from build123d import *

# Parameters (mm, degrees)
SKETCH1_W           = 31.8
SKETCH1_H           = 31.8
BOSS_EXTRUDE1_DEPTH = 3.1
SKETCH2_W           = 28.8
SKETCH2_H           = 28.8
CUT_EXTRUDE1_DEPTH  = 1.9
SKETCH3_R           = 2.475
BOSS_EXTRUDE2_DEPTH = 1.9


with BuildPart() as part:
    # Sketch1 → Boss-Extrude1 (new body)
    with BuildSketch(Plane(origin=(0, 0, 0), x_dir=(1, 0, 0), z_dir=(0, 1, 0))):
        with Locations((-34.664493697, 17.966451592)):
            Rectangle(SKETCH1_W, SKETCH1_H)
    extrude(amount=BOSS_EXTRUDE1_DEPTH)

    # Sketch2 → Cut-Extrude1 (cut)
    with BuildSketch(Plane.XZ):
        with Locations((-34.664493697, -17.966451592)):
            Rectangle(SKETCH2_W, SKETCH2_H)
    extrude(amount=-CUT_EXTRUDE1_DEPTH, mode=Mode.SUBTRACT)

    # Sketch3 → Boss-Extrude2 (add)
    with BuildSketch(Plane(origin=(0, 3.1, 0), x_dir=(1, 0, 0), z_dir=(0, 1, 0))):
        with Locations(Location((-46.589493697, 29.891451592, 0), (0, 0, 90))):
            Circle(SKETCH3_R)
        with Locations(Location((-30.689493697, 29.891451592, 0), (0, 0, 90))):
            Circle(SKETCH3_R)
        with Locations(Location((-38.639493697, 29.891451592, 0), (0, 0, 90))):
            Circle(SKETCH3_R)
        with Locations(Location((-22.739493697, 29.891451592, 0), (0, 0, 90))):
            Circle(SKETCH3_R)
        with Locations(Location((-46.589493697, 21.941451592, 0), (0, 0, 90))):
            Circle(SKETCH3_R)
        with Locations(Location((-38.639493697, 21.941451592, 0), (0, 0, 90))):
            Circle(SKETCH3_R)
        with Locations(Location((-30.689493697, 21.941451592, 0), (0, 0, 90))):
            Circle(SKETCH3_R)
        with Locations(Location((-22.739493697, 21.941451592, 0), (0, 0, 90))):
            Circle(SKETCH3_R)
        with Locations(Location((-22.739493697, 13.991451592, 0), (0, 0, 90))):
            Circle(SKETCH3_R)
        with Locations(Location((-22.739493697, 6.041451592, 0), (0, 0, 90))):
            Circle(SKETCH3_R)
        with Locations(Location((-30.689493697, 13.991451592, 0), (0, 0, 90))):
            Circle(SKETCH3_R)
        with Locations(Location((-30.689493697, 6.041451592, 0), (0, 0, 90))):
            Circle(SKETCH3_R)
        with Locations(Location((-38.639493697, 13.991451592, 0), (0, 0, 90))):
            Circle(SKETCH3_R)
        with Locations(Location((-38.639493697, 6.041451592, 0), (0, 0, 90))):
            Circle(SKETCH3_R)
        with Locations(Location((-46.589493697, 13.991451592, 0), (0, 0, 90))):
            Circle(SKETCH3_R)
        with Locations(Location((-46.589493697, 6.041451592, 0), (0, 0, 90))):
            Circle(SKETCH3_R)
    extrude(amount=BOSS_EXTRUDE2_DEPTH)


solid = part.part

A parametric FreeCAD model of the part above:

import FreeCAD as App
import Part
import Sketcher
from FreeCAD import Vector

doc = App.newDocument("Part")
body = doc.addObject("PartDesign::Body", "Body")

sketch1 = body.newObject("Sketcher::SketchObject", "Sketch")
sketch1.AttachmentSupport = (doc.getObject("XZ_Plane"), [""])
sketch1.MapMode = "FlatFace"
sketch1.addGeometry(Part.LineSegment(Vector(-51, -34, 0), Vector(-51, -2, 0)), False)
sketch1.addGeometry(Part.LineSegment(Vector(-51, -2, 0), Vector(-19, -2, 0)), False)
sketch1.addGeometry(Part.LineSegment(Vector(-19, -2, 0), Vector(-19, -34, 0)), False)
sketch1.addGeometry(Part.LineSegment(Vector(-19, -34, 0), Vector(-51, -34, 0)), False)
sketch1.addConstraint(Sketcher.Constraint("Coincident", 0, 2, 1, 1))
sketch1.addConstraint(Sketcher.Constraint("Coincident", 1, 2, 2, 1))
sketch1.addConstraint(Sketcher.Constraint("Coincident", 2, 2, 3, 1))
sketch1.addConstraint(Sketcher.Constraint("Coincident", 3, 2, 0, 1))
sketch1.addConstraint(Sketcher.Constraint("Vertical", 0))
sketch1.addConstraint(Sketcher.Constraint("Horizontal", 1))
sketch1.addConstraint(Sketcher.Constraint("Vertical", 2))
sketch1.addConstraint(Sketcher.Constraint("Horizontal", 3))
sketch1.addConstraint(Sketcher.Constraint("Equal", 3, 0))
sketch1.addConstraint(Sketcher.Constraint("DistanceX", 1, 1, 1, 2, 31.8))
sketch1.addConstraint(Sketcher.Constraint("DistanceY", 0, 2, -1, 1, 2.066452))
sketch1.addConstraint(Sketcher.Constraint("DistanceX", 0, 2, -1, 1, 50.564494))
pad1 = body.newObject("PartDesign::Pad", "Pad")
pad1.Profile = sketch1
pad1.Length = 3.1
pad1.Reversed = True

sketch2 = body.newObject("Sketcher::SketchObject", "Sketch001")
sketch2.AttachmentSupport = (doc.getObject("XZ_Plane"), [""])
sketch2.MapMode = "FlatFace"
sketch2.addGeometry(Part.LineSegment(Vector(-49, -4, 0), Vector(-49, -32, 0)), False)
sketch2.addGeometry(Part.LineSegment(Vector(-49, -32, 0), Vector(-20, -32, 0)), False)
sketch2.addGeometry(Part.LineSegment(Vector(-20, -32, 0), Vector(-20, -4, 0)), False)
sketch2.addGeometry(Part.LineSegment(Vector(-20, -4, 0), Vector(-49, -4, 0)), False)
sketch2.addConstraint(Sketcher.Constraint("Coincident", 0, 2, 1, 1))
sketch2.addConstraint(Sketcher.Constraint("Coincident", 1, 2, 2, 1))
sketch2.addConstraint(Sketcher.Constraint("Coincident", 2, 2, 3, 1))
sketch2.addConstraint(Sketcher.Constraint("Coincident", 3, 2, 0, 1))
sketch2.addConstraint(Sketcher.Constraint("Vertical", 0))
sketch2.addConstraint(Sketcher.Constraint("Horizontal", 1))
sketch2.addConstraint(Sketcher.Constraint("Vertical", 2))
sketch2.addConstraint(Sketcher.Constraint("Horizontal", 3))
sketch2.addConstraint(Sketcher.Constraint("Equal", 3, 0))
sketch2.addConstraint(Sketcher.Constraint("DistanceX", 1, 1, 1, 2, 28.8))
sketch2.addConstraint(Sketcher.Constraint("DistanceY", 0, 2, -1, 1, 32.366452))
sketch2.addConstraint(Sketcher.Constraint("DistanceX", 0, 2, -1, 1, 49.064494))
pocket1 = body.newObject("PartDesign::Pocket", "Pocket")
pocket1.Profile = sketch2
pocket1.Length = 1.9

sketch3 = body.newObject("Sketcher::SketchObject", "Sketch002")
sketch3.AttachmentSupport = (doc.getObject("XZ_Plane"), [""])
sketch3.MapMode = "FlatFace"
sketch3.AttachmentOffset = App.Placement(Vector(0, 0, -3.1), App.Rotation())
sketch3.addGeometry(Part.Circle(Vector(-46.6, -29.9, 0), Vector(0, 0, 1), 2.5), False)
sketch3.addGeometry(Part.Circle(Vector(-30.7, -29.9, 0), Vector(0, 0, 1), 2.5), False)
sketch3.addGeometry(Part.Circle(Vector(-38.6, -29.9, 0), Vector(0, 0, 1), 2.5), False)
sketch3.addGeometry(Part.Circle(Vector(-22.7, -29.9, 0), Vector(0, 0, 1), 2.5), False)
sketch3.addGeometry(Part.Circle(Vector(-46.6, -21.9, 0), Vector(0, 0, 1), 2.5), False)
sketch3.addGeometry(Part.Circle(Vector(-38.6, -21.9, 0), Vector(0, 0, 1), 2.5), False)
sketch3.addGeometry(Part.Circle(Vector(-30.7, -21.9, 0), Vector(0, 0, 1), 2.5), False)
sketch3.addGeometry(Part.Circle(Vector(-22.7, -21.9, 0), Vector(0, 0, 1), 2.5), False)
sketch3.addGeometry(Part.Circle(Vector(-22.7, -14, 0), Vector(0, 0, 1), 2.5), False)
sketch3.addGeometry(Part.Circle(Vector(-22.7, -6, 0), Vector(0, 0, 1), 2.5), False)
sketch3.addGeometry(Part.Circle(Vector(-30.7, -14, 0), Vector(0, 0, 1), 2.5), False)
sketch3.addGeometry(Part.Circle(Vector(-30.7, -6, 0), Vector(0, 0, 1), 2.5), False)
sketch3.addGeometry(Part.Circle(Vector(-38.6, -14, 0), Vector(0, 0, 1), 2.5), False)
sketch3.addGeometry(Part.Circle(Vector(-38.6, -6, 0), Vector(0, 0, 1), 2.5), False)
sketch3.addGeometry(Part.Circle(Vector(-46.6, -14, 0), Vector(0, 0, 1), 2.5), False)
sketch3.addGeometry(Part.Circle(Vector(-46.6, -6, 0), Vector(0, 0, 1), 2.5), False)
sketch3.addConstraint(Sketcher.Constraint("Equal", 0, 1))
sketch3.addConstraint(Sketcher.Constraint("Equal", 1, 2))
sketch3.addConstraint(Sketcher.Constraint("Equal", 2, 3))
sketch3.addConstraint(Sketcher.Constraint("Equal", 3, 4))
sketch3.addConstraint(Sketcher.Constraint("Equal", 4, 5))
sketch3.addConstraint(Sketcher.Constraint("Equal", 5, 6))
sketch3.addConstraint(Sketcher.Constraint("Equal", 6, 7))
sketch3.addConstraint(Sketcher.Constraint("Equal", 7, 8))
sketch3.addConstraint(Sketcher.Constraint("Equal", 8, 9))
sketch3.addConstraint(Sketcher.Constraint("Equal", 9, 10))
sketch3.addConstraint(Sketcher.Constraint("Equal", 10, 11))
sketch3.addConstraint(Sketcher.Constraint("Equal", 11, 12))
sketch3.addConstraint(Sketcher.Constraint("Equal", 12, 13))
sketch3.addConstraint(Sketcher.Constraint("Equal", 13, 14))
sketch3.addConstraint(Sketcher.Constraint("Equal", 14, 15))
sketch3.addConstraint(Sketcher.Constraint("Horizontal", 0, 3, 1, 3))
sketch3.addConstraint(Sketcher.Constraint("Horizontal", 1, 3, 2, 3))
sketch3.addConstraint(Sketcher.Constraint("Horizontal", 2, 3, 3, 3))
sketch3.addConstraint(Sketcher.Constraint("Horizontal", 4, 3, 5, 3))
sketch3.addConstraint(Sketcher.Constraint("Horizontal", 5, 3, 6, 3))
sketch3.addConstraint(Sketcher.Constraint("Horizontal", 6, 3, 7, 3))
sketch3.addConstraint(Sketcher.Constraint("Horizontal", 8, 3, 10, 3))
sketch3.addConstraint(Sketcher.Constraint("Horizontal", 9, 3, 11, 3))
sketch3.addConstraint(Sketcher.Constraint("Horizontal", 10, 3, 12, 3))
sketch3.addConstraint(Sketcher.Constraint("Horizontal", 11, 3, 13, 3))
sketch3.addConstraint(Sketcher.Constraint("Horizontal", 12, 3, 14, 3))
sketch3.addConstraint(Sketcher.Constraint("Horizontal", 13, 3, 15, 3))
sketch3.addConstraint(Sketcher.Constraint("Vertical", 0, 3, 4, 3))
sketch3.addConstraint(Sketcher.Constraint("Vertical", 2, 3, 5, 3))
sketch3.addConstraint(Sketcher.Constraint("Vertical", 1, 3, 6, 3))
sketch3.addConstraint(Sketcher.Constraint("Vertical", 3, 3, 7, 3))
sketch3.addConstraint(Sketcher.Constraint("Vertical", 7, 3, 8, 3))
sketch3.addConstraint(Sketcher.Constraint("Vertical", 8, 3, 9, 3))
sketch3.addConstraint(Sketcher.Constraint("Vertical", 6, 3, 10, 3))
sketch3.addConstraint(Sketcher.Constraint("Vertical", 10, 3, 11, 3))
sketch3.addConstraint(Sketcher.Constraint("Vertical", 5, 3, 12, 3))
sketch3.addConstraint(Sketcher.Constraint("Vertical", 12, 3, 13, 3))
sketch3.addConstraint(Sketcher.Constraint("Vertical", 4, 3, 14, 3))
sketch3.addConstraint(Sketcher.Constraint("Vertical", 14, 3, 15, 3))
sketch3.addConstraint(Sketcher.Constraint("Diameter", 0, 4.95))
sketch3.addConstraint(Sketcher.Constraint("DistanceX", 0, 3, 1, 3, 15.9))
sketch3.addConstraint(Sketcher.Constraint("DistanceX", 2, 3, 3, 3, 15.9))
sketch3.addConstraint(Sketcher.Constraint("DistanceY", 3, 3, 8, 3, 15.9))
sketch3.addConstraint(Sketcher.Constraint("DistanceY", 7, 3, 9, 3, 15.9))
sketch3.addConstraint(Sketcher.Constraint("DistanceX", 2, 3, 1, 3, 7.95))
sketch3.addConstraint(Sketcher.Constraint("DistanceY", 0, 3, 4, 3, 7.95))
sketch3.addConstraint(Sketcher.Constraint("DistanceY", 0, 3, -1, 1, 29.891452))
sketch3.addConstraint(Sketcher.Constraint("DistanceX", 0, 3, -1, 1, 46.589494))
pad2 = body.newObject("PartDesign::Pad", "Pad001")
pad2.Profile = sketch3
pad2.Length = 1.9
pad2.Reversed = True

doc.recompute()
